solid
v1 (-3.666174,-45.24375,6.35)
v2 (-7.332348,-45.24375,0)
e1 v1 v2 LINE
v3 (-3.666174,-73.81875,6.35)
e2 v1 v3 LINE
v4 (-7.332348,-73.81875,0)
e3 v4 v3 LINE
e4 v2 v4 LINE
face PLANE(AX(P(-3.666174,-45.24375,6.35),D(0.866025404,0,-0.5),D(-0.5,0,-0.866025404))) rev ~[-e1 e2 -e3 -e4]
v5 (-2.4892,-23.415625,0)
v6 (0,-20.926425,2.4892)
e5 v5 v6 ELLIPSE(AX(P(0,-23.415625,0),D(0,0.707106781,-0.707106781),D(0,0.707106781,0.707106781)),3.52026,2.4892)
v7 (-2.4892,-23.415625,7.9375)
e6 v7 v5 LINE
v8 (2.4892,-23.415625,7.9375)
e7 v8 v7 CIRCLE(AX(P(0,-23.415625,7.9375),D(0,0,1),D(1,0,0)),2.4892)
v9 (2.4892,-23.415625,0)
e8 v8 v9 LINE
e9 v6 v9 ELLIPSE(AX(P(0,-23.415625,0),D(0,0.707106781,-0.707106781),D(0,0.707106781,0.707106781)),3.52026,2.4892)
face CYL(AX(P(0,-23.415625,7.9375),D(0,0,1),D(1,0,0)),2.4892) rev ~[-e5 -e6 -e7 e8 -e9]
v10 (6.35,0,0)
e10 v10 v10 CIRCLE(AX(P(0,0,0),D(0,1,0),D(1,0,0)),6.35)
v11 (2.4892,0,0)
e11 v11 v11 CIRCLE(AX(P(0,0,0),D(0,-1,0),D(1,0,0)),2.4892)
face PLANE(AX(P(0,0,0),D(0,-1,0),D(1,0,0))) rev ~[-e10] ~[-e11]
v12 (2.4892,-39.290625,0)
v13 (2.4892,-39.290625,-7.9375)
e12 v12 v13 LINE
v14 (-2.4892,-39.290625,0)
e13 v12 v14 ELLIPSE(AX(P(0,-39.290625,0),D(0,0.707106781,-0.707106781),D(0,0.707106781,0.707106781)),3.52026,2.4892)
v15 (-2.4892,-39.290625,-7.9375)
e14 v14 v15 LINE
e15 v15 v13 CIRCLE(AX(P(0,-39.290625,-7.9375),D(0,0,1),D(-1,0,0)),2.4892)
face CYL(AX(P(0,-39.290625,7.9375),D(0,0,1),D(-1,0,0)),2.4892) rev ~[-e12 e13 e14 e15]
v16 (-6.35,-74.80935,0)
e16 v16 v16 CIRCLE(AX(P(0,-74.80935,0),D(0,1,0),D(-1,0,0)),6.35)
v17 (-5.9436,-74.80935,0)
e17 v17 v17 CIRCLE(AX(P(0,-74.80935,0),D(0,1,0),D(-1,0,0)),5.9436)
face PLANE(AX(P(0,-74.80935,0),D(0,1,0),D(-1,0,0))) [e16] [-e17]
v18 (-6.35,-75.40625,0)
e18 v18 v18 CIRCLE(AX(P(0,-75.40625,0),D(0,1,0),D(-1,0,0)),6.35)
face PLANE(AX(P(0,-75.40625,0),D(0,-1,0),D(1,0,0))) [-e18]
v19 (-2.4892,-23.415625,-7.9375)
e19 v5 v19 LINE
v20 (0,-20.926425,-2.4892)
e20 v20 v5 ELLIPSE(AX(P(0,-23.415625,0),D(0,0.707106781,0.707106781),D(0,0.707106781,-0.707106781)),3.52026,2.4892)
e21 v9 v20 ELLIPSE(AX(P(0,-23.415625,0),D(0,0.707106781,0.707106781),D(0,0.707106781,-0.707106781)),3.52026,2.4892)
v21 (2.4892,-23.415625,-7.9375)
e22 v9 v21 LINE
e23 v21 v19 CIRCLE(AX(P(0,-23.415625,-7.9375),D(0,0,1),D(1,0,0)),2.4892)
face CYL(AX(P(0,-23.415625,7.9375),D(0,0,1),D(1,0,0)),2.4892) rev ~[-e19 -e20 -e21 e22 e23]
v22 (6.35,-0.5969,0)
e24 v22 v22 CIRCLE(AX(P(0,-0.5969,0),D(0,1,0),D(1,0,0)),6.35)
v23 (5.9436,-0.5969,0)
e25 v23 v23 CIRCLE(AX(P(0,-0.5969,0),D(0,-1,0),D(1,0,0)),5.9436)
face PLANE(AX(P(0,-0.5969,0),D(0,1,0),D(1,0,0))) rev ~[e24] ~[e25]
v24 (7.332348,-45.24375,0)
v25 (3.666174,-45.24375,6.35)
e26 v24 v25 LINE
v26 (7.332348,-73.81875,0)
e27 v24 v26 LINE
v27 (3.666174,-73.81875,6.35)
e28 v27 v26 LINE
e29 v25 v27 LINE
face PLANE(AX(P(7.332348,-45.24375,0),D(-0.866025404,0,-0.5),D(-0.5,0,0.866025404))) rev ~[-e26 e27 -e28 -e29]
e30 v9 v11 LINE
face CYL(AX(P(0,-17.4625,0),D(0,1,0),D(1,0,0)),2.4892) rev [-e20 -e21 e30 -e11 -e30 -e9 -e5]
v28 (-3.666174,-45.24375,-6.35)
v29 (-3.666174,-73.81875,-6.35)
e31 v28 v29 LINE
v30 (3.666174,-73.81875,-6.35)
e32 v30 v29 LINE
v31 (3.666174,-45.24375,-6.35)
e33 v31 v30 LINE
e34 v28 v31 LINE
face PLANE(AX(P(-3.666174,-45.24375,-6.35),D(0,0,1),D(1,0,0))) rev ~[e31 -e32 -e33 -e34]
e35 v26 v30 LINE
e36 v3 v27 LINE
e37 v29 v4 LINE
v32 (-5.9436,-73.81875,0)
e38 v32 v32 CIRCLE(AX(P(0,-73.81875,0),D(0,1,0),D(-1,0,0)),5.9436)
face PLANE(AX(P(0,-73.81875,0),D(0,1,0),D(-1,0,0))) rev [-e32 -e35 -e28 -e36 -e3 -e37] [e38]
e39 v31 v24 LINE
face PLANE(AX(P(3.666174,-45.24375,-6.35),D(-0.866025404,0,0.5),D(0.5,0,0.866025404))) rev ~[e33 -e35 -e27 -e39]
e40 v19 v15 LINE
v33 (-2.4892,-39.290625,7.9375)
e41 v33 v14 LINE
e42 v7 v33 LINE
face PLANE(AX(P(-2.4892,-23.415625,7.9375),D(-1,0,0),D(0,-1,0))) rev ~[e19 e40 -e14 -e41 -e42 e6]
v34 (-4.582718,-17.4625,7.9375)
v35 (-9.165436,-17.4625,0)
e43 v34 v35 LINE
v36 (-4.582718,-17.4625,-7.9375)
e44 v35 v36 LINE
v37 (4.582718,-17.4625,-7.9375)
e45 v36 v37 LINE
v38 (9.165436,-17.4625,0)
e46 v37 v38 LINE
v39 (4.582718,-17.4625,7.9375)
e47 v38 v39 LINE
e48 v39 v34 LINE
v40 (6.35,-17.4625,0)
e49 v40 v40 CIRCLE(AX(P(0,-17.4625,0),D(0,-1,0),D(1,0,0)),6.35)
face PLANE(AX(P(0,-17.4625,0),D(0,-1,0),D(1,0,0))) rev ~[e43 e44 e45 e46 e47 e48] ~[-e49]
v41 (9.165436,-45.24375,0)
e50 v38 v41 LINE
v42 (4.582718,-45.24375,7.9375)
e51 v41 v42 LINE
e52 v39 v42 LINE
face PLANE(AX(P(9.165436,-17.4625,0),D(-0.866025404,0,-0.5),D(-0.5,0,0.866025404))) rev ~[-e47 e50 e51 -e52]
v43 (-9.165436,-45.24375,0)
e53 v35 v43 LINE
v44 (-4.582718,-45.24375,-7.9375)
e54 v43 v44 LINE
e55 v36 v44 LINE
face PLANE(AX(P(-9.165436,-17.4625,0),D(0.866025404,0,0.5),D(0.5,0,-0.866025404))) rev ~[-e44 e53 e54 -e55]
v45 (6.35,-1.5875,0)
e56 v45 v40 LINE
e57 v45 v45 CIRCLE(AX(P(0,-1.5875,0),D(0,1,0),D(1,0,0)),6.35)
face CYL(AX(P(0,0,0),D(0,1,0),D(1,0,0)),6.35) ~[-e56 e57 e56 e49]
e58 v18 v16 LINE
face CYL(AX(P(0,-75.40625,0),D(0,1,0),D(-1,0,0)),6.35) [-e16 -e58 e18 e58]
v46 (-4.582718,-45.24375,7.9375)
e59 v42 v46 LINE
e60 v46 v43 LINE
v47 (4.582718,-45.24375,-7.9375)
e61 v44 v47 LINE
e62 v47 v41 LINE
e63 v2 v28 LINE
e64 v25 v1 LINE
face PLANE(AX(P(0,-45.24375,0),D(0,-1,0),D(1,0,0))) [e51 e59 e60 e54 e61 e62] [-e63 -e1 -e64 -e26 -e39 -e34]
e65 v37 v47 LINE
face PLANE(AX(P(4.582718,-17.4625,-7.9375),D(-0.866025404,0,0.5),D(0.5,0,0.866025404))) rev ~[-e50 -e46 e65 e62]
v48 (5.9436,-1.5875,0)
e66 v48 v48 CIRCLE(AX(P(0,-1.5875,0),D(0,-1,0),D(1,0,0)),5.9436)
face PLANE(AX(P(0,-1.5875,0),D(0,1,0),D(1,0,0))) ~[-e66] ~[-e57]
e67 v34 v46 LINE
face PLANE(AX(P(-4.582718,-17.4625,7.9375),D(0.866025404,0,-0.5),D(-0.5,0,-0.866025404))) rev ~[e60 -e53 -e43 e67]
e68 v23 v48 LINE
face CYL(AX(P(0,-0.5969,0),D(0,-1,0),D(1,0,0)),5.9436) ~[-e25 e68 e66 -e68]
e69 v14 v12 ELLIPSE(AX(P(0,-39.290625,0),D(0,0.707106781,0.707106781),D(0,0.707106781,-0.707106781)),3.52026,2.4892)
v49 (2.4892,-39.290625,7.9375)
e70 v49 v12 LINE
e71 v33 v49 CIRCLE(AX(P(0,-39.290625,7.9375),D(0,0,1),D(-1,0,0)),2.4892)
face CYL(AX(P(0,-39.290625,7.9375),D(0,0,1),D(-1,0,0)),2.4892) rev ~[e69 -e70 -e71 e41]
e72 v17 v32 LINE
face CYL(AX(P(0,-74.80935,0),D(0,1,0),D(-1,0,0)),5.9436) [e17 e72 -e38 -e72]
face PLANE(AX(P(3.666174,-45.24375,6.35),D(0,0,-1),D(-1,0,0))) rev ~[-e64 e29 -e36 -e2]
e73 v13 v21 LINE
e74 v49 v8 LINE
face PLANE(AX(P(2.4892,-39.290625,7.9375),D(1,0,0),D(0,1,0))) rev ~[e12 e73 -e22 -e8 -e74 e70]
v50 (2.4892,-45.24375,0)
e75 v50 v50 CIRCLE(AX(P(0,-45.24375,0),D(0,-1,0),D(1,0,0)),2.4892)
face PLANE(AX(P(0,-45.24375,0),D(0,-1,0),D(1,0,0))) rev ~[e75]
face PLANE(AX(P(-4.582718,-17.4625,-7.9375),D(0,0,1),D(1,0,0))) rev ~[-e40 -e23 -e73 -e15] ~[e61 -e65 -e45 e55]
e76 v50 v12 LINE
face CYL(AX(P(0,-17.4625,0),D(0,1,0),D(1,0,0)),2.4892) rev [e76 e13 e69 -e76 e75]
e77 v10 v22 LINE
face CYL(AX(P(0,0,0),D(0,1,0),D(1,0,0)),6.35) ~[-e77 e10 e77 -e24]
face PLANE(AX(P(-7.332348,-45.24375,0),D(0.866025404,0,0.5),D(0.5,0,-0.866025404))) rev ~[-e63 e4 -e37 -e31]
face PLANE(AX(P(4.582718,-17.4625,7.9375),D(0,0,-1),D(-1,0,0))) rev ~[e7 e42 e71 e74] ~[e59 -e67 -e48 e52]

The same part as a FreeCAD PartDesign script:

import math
import FreeCAD as App
import Part
import Sketcher
Q = App.Units.Quantity


def add_polygon(sketch, points):
    """Adds a closed chain of lines whose ends are joined by coincident constraints."""
    first, n = sketch.GeometryCount, len(points)
    for a, b in zip(points, points[1:] + points[:1]):
        sketch.addGeometry(Part.LineSegment(App.Vector(*a, 0), App.Vector(*b, 0)), False)
    for i in range(n):
        sketch.addConstraint(Sketcher.Constraint("Coincident", first + i, 2, first + (i + 1) % n, 1))

doc = App.newDocument("Part")
body = doc.addObject("PartDesign::Body", "Body")

# Sketch on XZ plane
sketch1 = doc.addObject("Sketcher::SketchObject", "Sketch")
body.addObject(sketch1)
sketch1.AttachmentSupport = (doc.XZ_Plane, [""])
sketch1.MapMode = "FlatFace"
sketch1.addGeometry(Part.Circle(App.Vector(0, 0, 0), App.Vector(0, 0, 1), 6.3), False)
sketch1.addGeometry(Part.Circle(App.Vector(0, 0, 0), App.Vector(0, 0, 1), 2.5), False)
sketch1.addConstraint(Sketcher.Constraint("Coincident", 0, 3, -1, 1))
sketch1.addConstraint(Sketcher.Constraint("Coincident", 1, 3, -1, 1))
sketch1.addConstraint(Sketcher.Constraint("Diameter", 0, Q("0.5 in")))
sketch1.addConstraint(Sketcher.Constraint("Diameter", 1, Q("0.196 in")))
pad1 = doc.addObject("PartDesign::Pad", "Pad")
body.addObject(pad1)
pad1.Profile = sketch1
pad1.Length = Q("0.6875 in")

# Sketch on XZ plane
sketch2 = doc.addObject("Sketcher::SketchObject", "Sketch001")
body.addObject(sketch2)
sketch2.AttachmentSupport = (doc.XZ_Plane, [""])
sketch2.MapMode = "FlatFace"
sketch2.AttachmentOffset = App.Placement(App.Vector(0, 0, 0.6875 * 25.4), App.Rotation())
add_polygon(sketch2, [(4.6, 7.9), (-4.6, 7.9), (-9.2, 0), (-4.6, -7.9), (4.6, -7.9), (9.2, 0)])  # lines 0-5
sketch2.addGeometry(Part.Circle(App.Vector(0, 0, 0), App.Vector(0, 0, 1), 2.5), False)  # 6
sketch2.addConstraint(Sketcher.Constraint("Horizontal", 0))
sketch2.addConstraint(Sketcher.Constraint("Horizontal", 3))
sketch2.addConstraint(Sketcher.Constraint("Coincident", 6, 3, -1, 1))
sketch2.addConstraint(Sketcher.Constraint("Symmetric", 0, 2, 3, 2, -1, 1))
sketch2.addConstraint(Sketcher.Constraint("Symmetric", 1, 2, 4, 2, -1, 1))
sketch2.addConstraint(Sketcher.Constraint("PointOnObject", 1, 2, -1))
sketch2.addConstraint(Sketcher.Constraint("Parallel", 2, 5))
sketch2.addConstraint(Sketcher.Constraint("Vertical", 0, 2, 2, 2))
sketch2.addConstraint(Sketcher.Constraint("Diameter", 6, Q("0.196 in")))
sketch2.addConstraint(Sketcher.Constraint("Angle", 1, Q("-120 deg")))
sketch2.addConstraint(Sketcher.Constraint("DistanceY", -1, 1, 0, 2, Q("0.3125 in")))
sketch2.addConstraint(Sketcher.Constraint("DistanceX", 0, 2, 0, 1, 9.165436))
pad2 = doc.addObject("PartDesign::Pad", "Pad001")
body.addObject(pad2)
pad2.Profile = sketch2
pad2.Length = Q("1.09375 in")

# Sketch on XY plane
sketch3 = doc.addObject("Sketcher::SketchObject", "Sketch002")
body.addObject(sketch3)
sketch3.AttachmentSupport = (doc.XY_Plane, [""])
sketch3.MapMode = "FlatFace"
sketch3.AttachmentOffset = App.Placement(App.Vector(0, 0, 0.3125 * 25.4), App.Rotation())
sketch3.addGeometry(Part.ArcOfCircle(Part.Circle(App.Vector(0, -23.4, 0), App.Vector(0, 0, 1), 2.5), math.radians(0), math.radians(180)), False)
sketch3.addGeometry(Part.LineSegment(App.Vector(-2.5, -23.4, 0), App.Vector(-2.5, -39.3, 0)), False)
sketch3.addGeometry(Part.ArcOfCircle(Part.Circle(App.Vector(0, -39.3, 0), App.Vector(0, 0, 1), 2.5), math.radians(180), math.radians(360)), False)
sketch3.addGeometry(Part.LineSegment(App.Vector(2.5, -39.3, 0), App.Vector(2.5, -23.4, 0)), False)
sketch3.addConstraint(Sketcher.Constraint("Tangent", 0, 2, 1, 1))
sketch3.addConstraint(Sketcher.Constraint("Tangent", 1, 2, 2, 1))
sketch3.addConstraint(Sketcher.Constraint("Tangent", 2, 2, 3, 1))
sketch3.addConstraint(Sketcher.Constraint("Tangent", 3, 2, 0, 1))
sketch3.addConstraint(Sketcher.Constraint("Vertical", 1))
sketch3.addConstraint(Sketcher.Constraint("Vertical", 3))
sketch3.addConstraint(Sketcher.Constraint("PointOnObject", 0, 3, -2))
sketch3.addConstraint(Sketcher.Constraint("Radius", 0, Q("0.098 in")))
sketch3.addConstraint(Sketcher.Constraint("DistanceY", 1, 2, 1, 1, Q("0.625 in")))
sketch3.addConstraint(Sketcher.Constraint("DistanceY", 0, 3, -1, 1, Q("0.921875 in")))
pocket1 = doc.addObject("PartDesign::Pocket", "Pocket")
body.addObject(pocket1)
pocket1.Profile = sketch3
pocket1.Type = "ThroughAll"

# Sketch on XZ plane
sketch4 = doc.addObject("Sketcher::SketchObject", "Sketch003")
body.addObject(sketch4)
sketch4.AttachmentSupport = (doc.XZ_Plane, [""])
sketch4.MapMode = "FlatFace"
sketch4.AttachmentOffset = App.Placement(App.Vector(0, 0, 1.78125 * 25.4), App.Rotation())
add_polygon(sketch4, [(-4, -6), (4, -6), (7, 0), (4, 6), (-4, 6), (-7, 0)])  # lines 0-5
sketch4.addConstraint(Sketcher.Constraint("Horizontal", 0))
sketch4.addConstraint(Sketcher.Constraint("Horizontal", 3))
sketch4.addConstraint(Sketcher.Constraint("Symmetric", 0, 2, 3, 2, -1, 1))
sketch4.addConstraint(Sketcher.Constraint("Symmetric", 1, 2, 4, 2, -1, 1))
sketch4.addConstraint(Sketcher.Constraint("PointOnObject", 1, 2, -1))
sketch4.addConstraint(Sketcher.Constraint("Parallel", 2, 5))
sketch4.addConstraint(Sketcher.Constraint("Vertical", 0, 2, 2, 2))
sketch4.addConstraint(Sketcher.Constraint("Angle", 1, Q("60 deg")))
sketch4.addConstraint(Sketcher.Constraint("DistanceY", 0, 2, 2, 2, Q("0.5 in")))
sketch4.addConstraint(Sketcher.Constraint("DistanceX", 0, 1, 0, 2, 7.332348))
pad3 = doc.addObject("PartDesign::Pad", "Pad002")
body.addObject(pad3)
pad3.Profile = sketch4
pad3.Length = Q("1.1875 in")

# Sketch on XY plane
sketch5 = doc.addObject("Sketcher::SketchObject", "Sketch004")
body.addObject(sketch5)
sketch5.AttachmentSupport = (doc.XY_Plane, [""])
sketch5.MapMode = "FlatFace"
add_polygon(sketch5, [(-7.33, -75.41), (-6.35, -75.41), (-6.35, -74.81), (-5.94, -74.81), (-5.94, -73.82), (-7.33, -73.82)])  # lines 0-5
add_polygon(sketch5, [(6.35, -74.81), (6.35, -75.41), (7.33, -75.41), (7.33, -73.82), (5.94, -73.82), (5.94, -74.81)])  # lines 6-11
add_polygon(sketch5, [(7.33, -1.59), (7.33, 0), (6.35, 0), (6.35, -0.6), (5.94, -0.6), (5.94, -1.59)])  # lines 12-17
add_polygon(sketch5, [(-5.94, -0.6), (-6.35, -0.6), (-6.35, 0), (-7.33, 0), (-7.33, -1.59), (-5.94, -1.59)])  # lines 18-23
sketch5.addConstraint(Sketcher.Constraint("Horizontal", 0))
sketch5.addConstraint(Sketcher.Constraint("Vertical", 1))
sketch5.addConstraint(Sketcher.Constraint("Horizontal", 2))
sketch5.addConstraint(Sketcher.Constraint("Vertical", 3))
sketch5.addConstraint(Sketcher.Constraint("Horizontal", 4))
sketch5.addConstraint(Sketcher.Constraint("Vertical", 5))
sketch5.addConstraint(Sketcher.Constraint("Vertical", 6))
sketch5.addConstraint(Sketcher.Constraint("Horizontal", 7))
sketch5.addConstraint(Sketcher.Constraint("Vertical", 8))
sketch5.addConstraint(Sketcher.Constraint("Horizontal", 9))
sketch5.addConstraint(Sketcher.Constraint("Vertical", 10))
sketch5.addConstraint(Sketcher.Constraint("Horizontal", 11))
sketch5.addConstraint(Sketcher.Constraint("Vertical", 12))
sketch5.addConstraint(Sketcher.Constraint("Horizontal", 13))
sketch5.addConstraint(Sketcher.Constraint("Vertical", 14))
sketch5.addConstraint(Sketcher.Constraint("Horizontal", 15))
sketch5.addConstraint(Sketcher.Constraint("Vertical", 16))
sketch5.addConstraint(Sketcher.Constraint("Horizontal", 17))
sketch5.addConstraint(Sketcher.Constraint("Horizontal", 18))
sketch5.addConstraint(Sketcher.Constraint("Vertical", 19))
sketch5.addConstraint(Sketcher.Constraint("Horizontal", 20))
sketch5.addConstraint(Sketcher.Constraint("Vertical", 21))
sketch5.addConstraint(Sketcher.Constraint("Horizontal", 22))
sketch5.addConstraint(Sketcher.Constraint("Vertical", 23))
sketch5.addConstraint(Sketcher.Constraint("Symmetric", 13, 2, 19, 2, -1, 1))
sketch5.addConstraint(Sketcher.Constraint("Symmetric", 0, 2, 6, 2, -2))
sketch5.addConstraint(Sketcher.Constraint("Symmetric", 4, 2, 8, 2, -2))
sketch5.addConstraint(Sketcher.Constraint("Symmetric", 2, 2, 10, 2, -2))
sketch5.addConstraint(Sketcher.Constraint("Symmetric", 12, 2, 20, 2, -2))
sketch5.addConstraint(Sketcher.Constraint("Symmetric", 16, 2, 22, 2, -2))
sketch5.addConstraint(Sketcher.Constraint("Horizontal", 15, 2, 18, 2))
sketch5.addConstraint(Sketcher.Constraint("Vertical", 8, 2, 12, 2))
sketch5.addConstraint(Sketcher.Constraint("Vertical", 11, 2, 13, 2))
sketch5.addConstraint(Sketcher.Constraint("Vertical", 10, 2, 15, 2))
sketch5.addConstraint(Sketcher.Constraint("Equal", 8, 12))
sketch5.addConstraint(Sketcher.Constraint("Equal", 6, 14))
sketch5.addConstraint(Sketcher.Constraint("DistanceX", 0, 2, 6, 2, Q("0.5 in")))
sketch5.addConstraint(Sketcher.Constraint("DistanceX", 2, 1, 2, 2, Q("0.016 in")))
sketch5.addConstraint(Sketcher.Constraint("DistanceY", 3, 1, 3, 2, Q("0.039 in")))
sketch5.addConstraint(Sketcher.Constraint("DistanceY", 5, 2, 5, 1, Q("0.0625 in")))
sketch5.addConstraint(Sketcher.Constraint("DistanceY", 0, 2, -1, 1, Q("2.96875 in")))
sketch5.addConstraint(Sketcher.Constraint("DistanceX", 0, 1, 0, 2, 0.982348))
groove = doc.addObject("PartDesign::Groove", "Groove")
body.addObject(groove)
groove.Profile = sketch5
groove.ReferenceAxis = (sketch5, ["V_Axis"])
groove.Angle = 360

doc.recompute()
